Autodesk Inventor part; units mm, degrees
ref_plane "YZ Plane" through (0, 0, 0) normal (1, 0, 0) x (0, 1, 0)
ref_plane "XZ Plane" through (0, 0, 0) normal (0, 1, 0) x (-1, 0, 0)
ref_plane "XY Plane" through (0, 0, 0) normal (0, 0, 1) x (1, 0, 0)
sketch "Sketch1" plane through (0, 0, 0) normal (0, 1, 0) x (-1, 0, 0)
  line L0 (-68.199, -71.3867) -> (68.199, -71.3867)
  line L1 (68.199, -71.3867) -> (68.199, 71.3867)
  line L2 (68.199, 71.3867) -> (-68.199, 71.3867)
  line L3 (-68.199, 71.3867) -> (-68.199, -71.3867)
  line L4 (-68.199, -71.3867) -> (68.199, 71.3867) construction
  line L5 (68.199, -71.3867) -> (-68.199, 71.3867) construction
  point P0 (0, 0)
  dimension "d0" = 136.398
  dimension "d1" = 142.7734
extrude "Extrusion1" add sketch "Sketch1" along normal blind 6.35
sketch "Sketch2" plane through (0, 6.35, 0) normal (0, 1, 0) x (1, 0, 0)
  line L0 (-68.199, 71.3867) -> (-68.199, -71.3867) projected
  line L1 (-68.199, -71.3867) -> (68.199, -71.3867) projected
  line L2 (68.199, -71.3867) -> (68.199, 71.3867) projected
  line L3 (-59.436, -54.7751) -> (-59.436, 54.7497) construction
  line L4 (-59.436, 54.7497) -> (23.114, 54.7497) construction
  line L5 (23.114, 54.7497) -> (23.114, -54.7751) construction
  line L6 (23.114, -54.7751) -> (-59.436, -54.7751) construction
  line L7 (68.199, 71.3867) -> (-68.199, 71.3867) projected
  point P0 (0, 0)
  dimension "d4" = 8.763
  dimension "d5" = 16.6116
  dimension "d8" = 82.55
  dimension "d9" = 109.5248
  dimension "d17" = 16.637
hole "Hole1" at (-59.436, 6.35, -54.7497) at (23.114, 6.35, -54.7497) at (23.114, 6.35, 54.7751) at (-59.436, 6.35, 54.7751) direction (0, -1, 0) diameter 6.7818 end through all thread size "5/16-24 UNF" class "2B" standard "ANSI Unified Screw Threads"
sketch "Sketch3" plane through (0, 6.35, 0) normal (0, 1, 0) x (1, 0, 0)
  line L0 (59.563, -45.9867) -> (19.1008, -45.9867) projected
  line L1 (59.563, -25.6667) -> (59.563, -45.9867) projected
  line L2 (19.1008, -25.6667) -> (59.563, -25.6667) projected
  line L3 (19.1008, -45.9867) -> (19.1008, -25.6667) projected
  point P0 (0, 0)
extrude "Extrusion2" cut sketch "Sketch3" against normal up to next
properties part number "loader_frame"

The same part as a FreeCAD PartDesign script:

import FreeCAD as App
import Part
import Sketcher

V = App.Vector
Q = App.Units.Quantity


def add_polygon(sketch, points):
    """Adds a closed chain of lines whose ends are joined by coincident constraints."""
    first, n = sketch.GeometryCount, len(points)
    for a, b in zip(points, points[1:] + points[:1]):
        sketch.addGeometry(Part.LineSegment(App.Vector(*a, 0), App.Vector(*b, 0)), False)
    for i in range(n):
        sketch.addConstraint(Sketcher.Constraint("Coincident", first + i, 2, first + (i + 1) % n, 1))

doc = App.newDocument("Part")
body = doc.addObject("PartDesign::Body", "Body")

sketch1 = body.newObject("Sketcher::SketchObject", "Sketch")
sketch1.AttachmentSupport = (doc.getObject("XZ_Plane"), [""])
sketch1.MapMode = "FlatFace"
add_polygon(sketch1, [(68, 71), (68, -71), (-68, -71), (-68, 71)])
sketch1.addConstraint([
    Sketcher.Constraint("Vertical", 0),
    Sketcher.Constraint("Horizontal", 1),
    Sketcher.Constraint("Vertical", 2),
    Sketcher.Constraint("Horizontal", 3),
    Sketcher.Constraint("Symmetric", 0, 2, 2, 2, -1, 1),
    Sketcher.Constraint("DistanceX", 1, 2, 1, 1, Q("5.37 in")),
    Sketcher.Constraint("DistanceY", 0, 2, 0, 1, Q("5.621 in")),
])
pad1 = body.newObject("PartDesign::Pad", "Pad")
pad1.Profile = sketch1
pad1.Length = Q("0.25 in")
pad1.Reversed = True

sketch2 = body.newObject("Sketcher::SketchObject", "Sketch001")
sketch2.AttachmentSupport = (doc.getObject("XZ_Plane"), [""])
sketch2.MapMode = "FlatFace"
sketch2.AttachmentOffset = App.Placement(V(0, 0, -0.25 * 25.4), App.Rotation())
sketch2.addGeometry([
    Part.Circle(V(-59.4, -54.7, 0), V(0, 0, 1), 3.4),
    Part.Circle(V(23.1, -54.7, 0), V(0, 0, 1), 3.4),
    Part.Circle(V(23.1, 54.8, 0), V(0, 0, 1), 3.4),
    Part.Circle(V(-59.4, 54.8, 0), V(0, 0, 1), 3.4),
], False)
sketch2.addConstraint([
    Sketcher.Constraint("Equal", 0, 1),
    Sketcher.Constraint("Equal", 1, 2),
    Sketcher.Constraint("Equal", 2, 3),
    Sketcher.Constraint("Horizontal", 0, 3, 1, 3),
    Sketcher.Constraint("Horizontal", 2, 3, 3, 3),
    Sketcher.Constraint("Vertical", 1, 3, 2, 3),
    Sketcher.Constraint("Vertical", 0, 3, 3, 3),
    Sketcher.Constraint("Diameter", 0, Q("0.267 in")),
    Sketcher.Constraint("DistanceX", 0, 3, -1, 1, Q("2.34 in")),
    Sketcher.Constraint("DistanceX", -1, 1, 1, 3, Q("0.91 in")),
    Sketcher.Constraint("DistanceY", 1, 3, 2, 3, Q("4.312 in")),
    Sketcher.Constraint("DistanceY", 0, 3, -1, 1, Q("2.1555 in")),
])
doc.recompute()
hole = body.newObject("PartDesign::Hole", "Hole")
hole.Profile = sketch2
hole.ThreadType = "None"
hole.Diameter = Q("0.267 in")
hole.DepthType = "ThroughAll"
hole.Reversed = True

sketch3 = body.newObject("Sketcher::SketchObject", "Sketch002")
sketch3.AttachmentSupport = (doc.getObject("XZ_Plane"), [""])
sketch3.MapMode = "FlatFace"
sketch3.AttachmentOffset = App.Placement(V(0, 0, -0.25 * 25.4), App.Rotation())
add_polygon(sketch3, [(19, 46), (60, 46), (60, 26), (19, 26)])
sketch3.addConstraint([
    Sketcher.Constraint("Horizontal", 0),
    Sketcher.Constraint("Vertical", 1),
    Sketcher.Constraint("Horizontal", 2),
    Sketcher.Constraint("Vertical", 3),
    Sketcher.Constraint("DistanceY", 1, 2, 1, 1, Q("0.8 in")),
    Sketcher.Constraint("DistanceX", 0, 1, 0, 2, Q("1.593 in")),
    Sketcher.Constraint("DistanceX", -1, 1, 0, 2, Q("2.345 in")),
    Sketcher.Constraint("DistanceY", -1, 1, 0, 2, Q("1.8105 in")),
])
pocket1 = body.newObject("PartDesign::Pocket", "Pocket")
pocket1.Profile = sketch3
pocket1.Type = "UpToFirst"
pocket1.Reversed = True

doc.recompute()
